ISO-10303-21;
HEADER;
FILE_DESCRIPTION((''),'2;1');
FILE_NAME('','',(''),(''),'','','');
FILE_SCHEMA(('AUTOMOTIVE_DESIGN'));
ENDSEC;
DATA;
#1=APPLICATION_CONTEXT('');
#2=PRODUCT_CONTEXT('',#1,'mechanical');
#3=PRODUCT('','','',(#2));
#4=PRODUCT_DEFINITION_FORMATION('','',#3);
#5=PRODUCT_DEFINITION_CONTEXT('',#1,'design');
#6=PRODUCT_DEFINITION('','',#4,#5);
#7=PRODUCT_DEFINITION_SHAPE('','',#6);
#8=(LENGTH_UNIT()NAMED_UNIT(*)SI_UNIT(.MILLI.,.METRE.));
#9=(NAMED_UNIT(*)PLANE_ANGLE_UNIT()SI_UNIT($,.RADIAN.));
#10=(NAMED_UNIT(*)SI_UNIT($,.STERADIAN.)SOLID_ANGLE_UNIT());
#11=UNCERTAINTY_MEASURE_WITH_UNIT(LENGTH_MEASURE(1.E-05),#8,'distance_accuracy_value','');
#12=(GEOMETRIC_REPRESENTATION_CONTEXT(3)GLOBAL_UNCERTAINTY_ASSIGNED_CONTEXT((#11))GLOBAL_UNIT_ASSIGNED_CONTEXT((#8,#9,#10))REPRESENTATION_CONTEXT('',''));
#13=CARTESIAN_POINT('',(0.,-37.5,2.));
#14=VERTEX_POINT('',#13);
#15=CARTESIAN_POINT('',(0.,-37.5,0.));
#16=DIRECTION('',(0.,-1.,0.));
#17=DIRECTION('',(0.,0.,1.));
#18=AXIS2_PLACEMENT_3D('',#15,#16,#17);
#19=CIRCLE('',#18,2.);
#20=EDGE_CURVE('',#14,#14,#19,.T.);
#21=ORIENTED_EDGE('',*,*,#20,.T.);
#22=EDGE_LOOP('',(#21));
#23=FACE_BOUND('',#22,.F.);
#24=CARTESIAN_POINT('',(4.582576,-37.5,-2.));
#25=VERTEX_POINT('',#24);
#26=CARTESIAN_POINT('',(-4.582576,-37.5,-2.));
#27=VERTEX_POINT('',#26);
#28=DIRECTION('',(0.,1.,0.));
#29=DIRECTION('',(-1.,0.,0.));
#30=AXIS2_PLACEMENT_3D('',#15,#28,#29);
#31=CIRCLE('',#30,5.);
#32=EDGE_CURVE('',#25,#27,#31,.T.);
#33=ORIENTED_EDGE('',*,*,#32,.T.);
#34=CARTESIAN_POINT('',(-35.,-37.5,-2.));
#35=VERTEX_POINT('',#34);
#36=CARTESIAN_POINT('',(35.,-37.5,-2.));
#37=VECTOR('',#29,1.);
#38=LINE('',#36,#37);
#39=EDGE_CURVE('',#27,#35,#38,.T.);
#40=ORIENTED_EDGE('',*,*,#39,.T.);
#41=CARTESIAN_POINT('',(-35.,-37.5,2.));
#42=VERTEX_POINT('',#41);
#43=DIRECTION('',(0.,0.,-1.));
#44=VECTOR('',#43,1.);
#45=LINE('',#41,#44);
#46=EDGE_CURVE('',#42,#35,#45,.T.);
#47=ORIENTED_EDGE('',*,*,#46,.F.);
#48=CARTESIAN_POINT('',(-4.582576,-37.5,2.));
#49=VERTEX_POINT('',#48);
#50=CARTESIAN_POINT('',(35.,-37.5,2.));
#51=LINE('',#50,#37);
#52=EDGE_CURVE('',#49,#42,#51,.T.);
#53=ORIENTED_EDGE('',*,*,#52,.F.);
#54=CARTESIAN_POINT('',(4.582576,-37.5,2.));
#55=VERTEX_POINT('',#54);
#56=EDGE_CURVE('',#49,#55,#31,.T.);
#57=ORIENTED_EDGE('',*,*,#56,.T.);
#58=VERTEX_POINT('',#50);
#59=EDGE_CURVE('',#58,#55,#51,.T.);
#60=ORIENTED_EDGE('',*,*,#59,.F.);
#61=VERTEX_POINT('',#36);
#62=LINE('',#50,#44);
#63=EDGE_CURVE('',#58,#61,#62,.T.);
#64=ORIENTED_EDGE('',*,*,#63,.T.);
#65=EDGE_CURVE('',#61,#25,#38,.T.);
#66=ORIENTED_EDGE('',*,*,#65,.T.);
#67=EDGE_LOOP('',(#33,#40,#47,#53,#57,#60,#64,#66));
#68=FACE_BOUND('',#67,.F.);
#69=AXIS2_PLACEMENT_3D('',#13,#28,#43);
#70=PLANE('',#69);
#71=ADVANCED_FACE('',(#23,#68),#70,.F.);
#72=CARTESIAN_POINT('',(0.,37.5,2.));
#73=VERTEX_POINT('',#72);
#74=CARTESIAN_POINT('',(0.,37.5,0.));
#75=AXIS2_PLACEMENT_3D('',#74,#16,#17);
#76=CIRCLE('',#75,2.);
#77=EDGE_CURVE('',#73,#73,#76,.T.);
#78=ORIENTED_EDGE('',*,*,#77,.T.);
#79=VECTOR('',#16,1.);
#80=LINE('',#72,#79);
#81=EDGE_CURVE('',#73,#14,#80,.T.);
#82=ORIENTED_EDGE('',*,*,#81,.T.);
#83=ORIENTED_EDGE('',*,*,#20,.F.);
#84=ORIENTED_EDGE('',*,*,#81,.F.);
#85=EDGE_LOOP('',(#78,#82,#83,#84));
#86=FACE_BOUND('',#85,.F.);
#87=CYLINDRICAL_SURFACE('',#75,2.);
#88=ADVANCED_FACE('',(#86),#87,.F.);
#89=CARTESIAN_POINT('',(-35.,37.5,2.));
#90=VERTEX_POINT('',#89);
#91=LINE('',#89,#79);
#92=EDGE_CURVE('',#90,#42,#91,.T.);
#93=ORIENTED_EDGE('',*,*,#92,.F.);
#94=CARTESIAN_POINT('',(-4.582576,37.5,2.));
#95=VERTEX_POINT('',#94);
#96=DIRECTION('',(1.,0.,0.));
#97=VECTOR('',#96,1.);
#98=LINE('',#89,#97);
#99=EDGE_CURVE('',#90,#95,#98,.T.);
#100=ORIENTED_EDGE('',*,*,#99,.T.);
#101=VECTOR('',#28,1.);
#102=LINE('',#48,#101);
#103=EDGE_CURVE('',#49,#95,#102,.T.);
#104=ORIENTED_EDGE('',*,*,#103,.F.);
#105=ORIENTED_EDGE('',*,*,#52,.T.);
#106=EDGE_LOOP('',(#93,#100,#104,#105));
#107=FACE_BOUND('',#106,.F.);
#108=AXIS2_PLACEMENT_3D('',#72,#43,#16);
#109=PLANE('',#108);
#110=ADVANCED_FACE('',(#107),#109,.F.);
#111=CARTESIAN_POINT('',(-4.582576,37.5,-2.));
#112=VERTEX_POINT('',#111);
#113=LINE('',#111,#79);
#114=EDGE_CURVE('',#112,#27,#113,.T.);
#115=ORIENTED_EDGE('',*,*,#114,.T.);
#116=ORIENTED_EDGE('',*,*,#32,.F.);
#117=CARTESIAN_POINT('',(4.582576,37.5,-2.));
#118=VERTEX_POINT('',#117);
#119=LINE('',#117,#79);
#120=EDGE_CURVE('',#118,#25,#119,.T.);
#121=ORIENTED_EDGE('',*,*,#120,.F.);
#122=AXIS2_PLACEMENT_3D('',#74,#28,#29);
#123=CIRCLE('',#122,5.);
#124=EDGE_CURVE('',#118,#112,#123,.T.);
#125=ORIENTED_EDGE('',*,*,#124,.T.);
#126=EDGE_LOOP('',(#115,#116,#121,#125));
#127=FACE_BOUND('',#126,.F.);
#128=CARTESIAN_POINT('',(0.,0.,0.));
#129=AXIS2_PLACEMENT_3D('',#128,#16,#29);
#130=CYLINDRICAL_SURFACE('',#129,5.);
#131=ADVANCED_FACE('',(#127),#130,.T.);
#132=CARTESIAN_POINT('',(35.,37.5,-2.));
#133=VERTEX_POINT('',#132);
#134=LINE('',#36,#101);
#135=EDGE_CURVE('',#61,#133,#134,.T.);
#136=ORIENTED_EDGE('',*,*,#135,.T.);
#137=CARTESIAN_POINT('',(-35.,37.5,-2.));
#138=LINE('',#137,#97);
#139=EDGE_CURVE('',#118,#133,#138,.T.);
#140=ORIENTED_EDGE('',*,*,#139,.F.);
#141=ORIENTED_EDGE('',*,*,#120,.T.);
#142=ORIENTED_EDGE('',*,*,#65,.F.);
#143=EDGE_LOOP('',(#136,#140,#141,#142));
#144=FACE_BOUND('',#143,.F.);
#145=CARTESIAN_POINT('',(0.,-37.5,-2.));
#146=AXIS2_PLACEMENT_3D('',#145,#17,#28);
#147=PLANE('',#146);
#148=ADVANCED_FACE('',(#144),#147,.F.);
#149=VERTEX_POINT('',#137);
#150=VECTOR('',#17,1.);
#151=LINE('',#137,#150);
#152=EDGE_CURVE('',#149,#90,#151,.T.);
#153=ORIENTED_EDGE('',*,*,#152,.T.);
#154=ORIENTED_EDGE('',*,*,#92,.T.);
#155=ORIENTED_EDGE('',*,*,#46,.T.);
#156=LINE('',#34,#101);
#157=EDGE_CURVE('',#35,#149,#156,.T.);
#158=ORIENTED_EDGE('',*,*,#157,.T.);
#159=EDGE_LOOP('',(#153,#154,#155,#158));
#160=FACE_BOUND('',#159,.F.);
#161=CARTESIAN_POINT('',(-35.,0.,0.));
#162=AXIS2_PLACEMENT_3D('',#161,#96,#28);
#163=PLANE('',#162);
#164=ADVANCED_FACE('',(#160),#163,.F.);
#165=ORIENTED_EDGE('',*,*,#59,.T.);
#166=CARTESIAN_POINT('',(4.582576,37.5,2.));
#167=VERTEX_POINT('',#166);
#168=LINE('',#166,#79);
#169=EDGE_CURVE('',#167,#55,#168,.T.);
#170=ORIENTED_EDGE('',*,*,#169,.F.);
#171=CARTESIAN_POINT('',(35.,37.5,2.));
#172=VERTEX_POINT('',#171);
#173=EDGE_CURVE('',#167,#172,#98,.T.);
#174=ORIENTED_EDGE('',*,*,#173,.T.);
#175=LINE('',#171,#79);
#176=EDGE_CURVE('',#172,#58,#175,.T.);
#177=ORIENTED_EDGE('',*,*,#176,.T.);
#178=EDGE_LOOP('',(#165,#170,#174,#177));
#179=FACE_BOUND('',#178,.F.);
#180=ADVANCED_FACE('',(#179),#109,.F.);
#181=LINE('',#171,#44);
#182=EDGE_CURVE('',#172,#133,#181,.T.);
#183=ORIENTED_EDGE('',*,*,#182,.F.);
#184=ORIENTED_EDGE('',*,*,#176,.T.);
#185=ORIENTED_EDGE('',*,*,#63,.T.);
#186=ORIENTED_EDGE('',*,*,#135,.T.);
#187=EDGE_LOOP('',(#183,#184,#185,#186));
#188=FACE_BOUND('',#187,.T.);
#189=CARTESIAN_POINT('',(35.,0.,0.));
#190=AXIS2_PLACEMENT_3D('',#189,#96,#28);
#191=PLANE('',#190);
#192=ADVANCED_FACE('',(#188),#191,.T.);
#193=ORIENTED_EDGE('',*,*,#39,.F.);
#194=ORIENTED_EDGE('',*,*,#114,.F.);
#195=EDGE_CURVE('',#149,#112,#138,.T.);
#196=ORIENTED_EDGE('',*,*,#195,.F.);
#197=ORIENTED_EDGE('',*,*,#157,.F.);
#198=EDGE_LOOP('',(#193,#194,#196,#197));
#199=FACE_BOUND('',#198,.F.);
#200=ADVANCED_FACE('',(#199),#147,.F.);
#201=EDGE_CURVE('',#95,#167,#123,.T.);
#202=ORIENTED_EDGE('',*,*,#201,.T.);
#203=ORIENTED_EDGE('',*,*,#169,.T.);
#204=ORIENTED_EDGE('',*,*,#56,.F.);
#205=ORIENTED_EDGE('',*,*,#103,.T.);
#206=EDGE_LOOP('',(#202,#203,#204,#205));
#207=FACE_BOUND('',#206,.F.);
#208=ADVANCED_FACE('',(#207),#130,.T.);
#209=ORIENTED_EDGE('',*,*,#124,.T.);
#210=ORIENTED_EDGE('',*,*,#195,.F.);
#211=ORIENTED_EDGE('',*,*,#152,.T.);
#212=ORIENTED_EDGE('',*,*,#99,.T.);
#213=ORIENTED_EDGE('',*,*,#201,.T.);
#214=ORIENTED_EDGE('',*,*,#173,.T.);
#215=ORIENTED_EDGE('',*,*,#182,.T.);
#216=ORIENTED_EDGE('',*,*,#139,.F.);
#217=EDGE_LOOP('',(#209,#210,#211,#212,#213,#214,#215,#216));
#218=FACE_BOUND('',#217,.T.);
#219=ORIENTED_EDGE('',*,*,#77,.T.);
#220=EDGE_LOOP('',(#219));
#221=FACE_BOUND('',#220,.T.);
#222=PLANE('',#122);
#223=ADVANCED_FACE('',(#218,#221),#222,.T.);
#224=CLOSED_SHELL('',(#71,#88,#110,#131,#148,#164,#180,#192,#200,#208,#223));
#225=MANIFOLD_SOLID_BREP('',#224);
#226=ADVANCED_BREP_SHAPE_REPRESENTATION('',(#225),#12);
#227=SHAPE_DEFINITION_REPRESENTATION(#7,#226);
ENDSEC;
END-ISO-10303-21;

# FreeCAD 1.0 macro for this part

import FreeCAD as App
import Part
import Sketcher
Q = App.Units.Quantity


def add_polygon(sketch, points):
    """Adds a closed chain of lines whose ends are joined by coincident constraints."""
    first, n = sketch.GeometryCount, len(points)
    for a, b in zip(points, points[1:] + points[:1]):
        sketch.addGeometry(Part.LineSegment(App.Vector(*a, 0), App.Vector(*b, 0)), False)
    for i in range(n):
        sketch.addConstraint(Sketcher.Constraint("Coincident", first + i, 2, first + (i + 1) % n, 1))

doc = App.newDocument("Part")
body = doc.addObject("PartDesign::Body", "Body")

sketch1 = body.newObject("Sketcher::SketchObject", "Sketch")
sketch1.AttachmentSupport = (doc.getObject("XZ_Plane"), [""])
sketch1.MapMode = "FlatFace"
sketch1.addGeometry(Part.Circle(App.Vector(0, 0, 0), App.Vector(0, 0, 1), 5), False)
sketch1.addConstraint([
    Sketcher.Constraint("Coincident", 0, 3, -1, 1),
    Sketcher.Constraint("Diameter", 0, Q("10 mm")),
])
pad1 = body.newObject("PartDesign::Pad", "Pad")
pad1.Profile = sketch1
pad1.Length = 75
pad1.Midplane = True

sketch2 = body.newObject("Sketcher::SketchObject", "Sketch001")
sketch2.AttachmentSupport = (doc.getObject("YZ_Plane"), [""])
sketch2.MapMode = "FlatFace"
add_polygon(sketch2, [(-37.5, -2), (37.5, -2), (37.5, 2), (-37.5, 2)])
sketch2.addConstraint([
    Sketcher.Constraint("Horizontal", 0),
    Sketcher.Constraint("Vertical", 1),
    Sketcher.Constraint("Horizontal", 2),
    Sketcher.Constraint("Vertical", 3),
    Sketcher.Constraint("Symmetric", 0, 2, 2, 2, -1, 1),
    Sketcher.Constraint("DistanceX", 0, 1, 0, 2, Q("75 mm")),
    Sketcher.Constraint("DistanceY", 1, 1, 1, 2, Q("4 mm")),
])
pad2 = body.newObject("PartDesign::Pad", "Pad001")
pad2.Profile = sketch2
pad2.Length = 70
pad2.Midplane = True

sketch3 = body.newObject("Sketcher::SketchObject", "Sketch002")
sketch3.AttachmentSupport = (doc.getObject("XZ_Plane"), [""])
sketch3.MapMode = "FlatFace"
sketch3.AttachmentOffset = App.Placement(App.Vector(0, 0, -37.5), App.Rotation())
sketch3.addGeometry(Part.Circle(App.Vector(0, 0, 0), App.Vector(0, 0, 1), 2), False)
sketch3.addConstraint([
    Sketcher.Constraint("Coincident", 0, 3, -1, 1),
    Sketcher.Constraint("Diameter", 0, Q("4 mm")),
])
doc.recompute()
hole = body.newObject("PartDesign::Hole", "Hole")
hole.Profile = sketch3
hole.ThreadType = "None"
hole.Diameter = 4
hole.DepthType = "Dimension"
hole.Depth = 120
hole.DrillPoint = "Flat"
hole.Reversed = True

doc.recompute()
